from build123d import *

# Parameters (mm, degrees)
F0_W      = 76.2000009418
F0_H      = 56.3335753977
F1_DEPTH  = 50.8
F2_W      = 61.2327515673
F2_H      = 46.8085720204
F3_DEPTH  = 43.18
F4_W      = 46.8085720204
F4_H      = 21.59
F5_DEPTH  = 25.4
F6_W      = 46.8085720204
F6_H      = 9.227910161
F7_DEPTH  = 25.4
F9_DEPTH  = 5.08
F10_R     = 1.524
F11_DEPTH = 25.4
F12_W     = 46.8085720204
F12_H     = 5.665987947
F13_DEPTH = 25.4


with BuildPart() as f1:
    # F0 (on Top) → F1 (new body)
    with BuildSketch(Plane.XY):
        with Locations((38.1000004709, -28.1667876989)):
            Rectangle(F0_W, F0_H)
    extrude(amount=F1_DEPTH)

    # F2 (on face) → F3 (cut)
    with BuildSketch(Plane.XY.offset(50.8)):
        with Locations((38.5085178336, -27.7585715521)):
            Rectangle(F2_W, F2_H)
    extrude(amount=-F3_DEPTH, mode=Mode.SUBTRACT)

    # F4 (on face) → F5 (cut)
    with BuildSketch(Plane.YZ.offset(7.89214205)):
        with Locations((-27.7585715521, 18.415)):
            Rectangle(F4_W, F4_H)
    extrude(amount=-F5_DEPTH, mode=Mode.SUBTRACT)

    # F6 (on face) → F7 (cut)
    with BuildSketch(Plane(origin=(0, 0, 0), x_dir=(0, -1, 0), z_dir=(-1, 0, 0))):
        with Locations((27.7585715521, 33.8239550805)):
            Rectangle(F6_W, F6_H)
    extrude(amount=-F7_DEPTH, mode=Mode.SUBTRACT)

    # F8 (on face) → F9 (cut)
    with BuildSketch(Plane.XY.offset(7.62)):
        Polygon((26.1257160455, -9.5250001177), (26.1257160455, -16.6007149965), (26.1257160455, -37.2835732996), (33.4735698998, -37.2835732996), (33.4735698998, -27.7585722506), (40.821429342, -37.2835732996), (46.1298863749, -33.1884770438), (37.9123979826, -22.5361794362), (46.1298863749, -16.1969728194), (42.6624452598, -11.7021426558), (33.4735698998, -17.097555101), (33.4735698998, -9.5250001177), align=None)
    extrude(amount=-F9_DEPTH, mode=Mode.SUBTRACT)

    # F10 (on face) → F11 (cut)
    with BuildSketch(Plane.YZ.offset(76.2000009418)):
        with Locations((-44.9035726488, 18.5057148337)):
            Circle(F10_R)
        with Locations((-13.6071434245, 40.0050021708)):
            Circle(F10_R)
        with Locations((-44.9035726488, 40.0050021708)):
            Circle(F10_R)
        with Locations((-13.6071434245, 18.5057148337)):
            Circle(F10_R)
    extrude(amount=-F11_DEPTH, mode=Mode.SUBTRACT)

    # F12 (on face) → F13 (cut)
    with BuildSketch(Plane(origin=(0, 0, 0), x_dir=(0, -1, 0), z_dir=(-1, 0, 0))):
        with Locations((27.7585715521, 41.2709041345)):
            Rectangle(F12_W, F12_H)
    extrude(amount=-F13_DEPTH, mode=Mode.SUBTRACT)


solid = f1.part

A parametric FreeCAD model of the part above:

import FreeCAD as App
import Part
import Sketcher
from FreeCAD import Vector
Q = App.Units.Quantity

doc = App.newDocument("Part")
body = doc.addObject("PartDesign::Body", "Body")

sketch1 = body.newObject("Sketcher::SketchObject", "Sketch")
sketch1.AttachmentSupport = (doc.getObject("XY_Plane"), [""])
sketch1.MapMode = "FlatFace"
sketch1.addGeometry(Part.LineSegment(Vector(0, 0, 0), Vector(0, -56, 0)), False)
sketch1.addGeometry(Part.LineSegment(Vector(0, -56, 0), Vector(76, -56, 0)), False)
sketch1.addGeometry(Part.LineSegment(Vector(76, -56, 0), Vector(76, 0, 0)), False)
sketch1.addGeometry(Part.LineSegment(Vector(76, 0, 0), Vector(0, 0, 0)), False)
sketch1.addConstraint(Sketcher.Constraint("Coincident", 0, 2, 1, 1))
sketch1.addConstraint(Sketcher.Constraint("Coincident", 1, 2, 2, 1))
sketch1.addConstraint(Sketcher.Constraint("Coincident", 2, 2, 3, 1))
sketch1.addConstraint(Sketcher.Constraint("Coincident", 3, 2, 0, 1))
sketch1.addConstraint(Sketcher.Constraint("Vertical", 0))
sketch1.addConstraint(Sketcher.Constraint("Horizontal", 1))
sketch1.addConstraint(Sketcher.Constraint("Vertical", 2))
sketch1.addConstraint(Sketcher.Constraint("Horizontal", 3))
sketch1.addConstraint(Sketcher.Constraint("Coincident", 3, 2, -1, 1))
sketch1.addConstraint(Sketcher.Constraint("DistanceX", 1, 1, 1, 2, Q("3 in")))
sketch1.addConstraint(Sketcher.Constraint("DistanceY", 0, 2, 0, 1, Q("56.333575 mm")))
pad1 = body.newObject("PartDesign::Pad", "Pad")
pad1.Profile = sketch1
pad1.Length = Q("2 in")

sketch2 = body.newObject("Sketcher::SketchObject", "Sketch001")
sketch2.AttachmentSupport = (doc.getObject("XY_Plane"), [""])
sketch2.MapMode = "FlatFace"
sketch2.AttachmentOffset = App.Placement(Vector(0, 0, 2 * 25.4), App.Rotation())
sketch2.addGeometry(Part.LineSegment(Vector(8, -4, 0), Vector(8, -51, 0)), False)
sketch2.addGeometry(Part.LineSegment(Vector(8, -51, 0), Vector(69, -51, 0)), False)
sketch2.addGeometry(Part.LineSegment(Vector(69, -51, 0), Vector(69, -4, 0)), False)
sketch2.addGeometry(Part.LineSegment(Vector(69, -4, 0), Vector(8, -4, 0)), False)
sketch2.addConstraint(Sketcher.Constraint("Coincident", 0, 2, 1, 1))
sketch2.addConstraint(Sketcher.Constraint("Coincident", 1, 2, 2, 1))
sketch2.addConstraint(Sketcher.Constraint("Coincident", 2, 2, 3, 1))
sketch2.addConstraint(Sketcher.Constraint("Coincident", 3, 2, 0, 1))
sketch2.addConstraint(Sketcher.Constraint("Vertical", 0))
sketch2.addConstraint(Sketcher.Constraint("Horizontal", 1))
sketch2.addConstraint(Sketcher.Constraint("Vertical", 2))
sketch2.addConstraint(Sketcher.Constraint("Horizontal", 3))
sketch2.addConstraint(Sketcher.Constraint("DistanceX", 1, 1, 1, 2, Q("61.232752 mm")))
sketch2.addConstraint(Sketcher.Constraint("DistanceY", 0, 2, 0, 1, Q("46.808572 mm")))
sketch2.addConstraint(Sketcher.Constraint("DistanceX", -1, 1, 0, 2, Q("7.892142 mm")))
sketch2.addConstraint(Sketcher.Constraint("DistanceY", 0, 2, -1, 1, Q("51.162858 mm")))
pocket1 = body.newObject("PartDesign::Pocket", "Pocket")
pocket1.Profile = sketch2
pocket1.Length = Q("1.7 in")

sketch3 = body.newObject("Sketcher::SketchObject", "Sketch002")
sketch3.AttachmentSupport = (doc.getObject("YZ_Plane"), [""])
sketch3.MapMode = "FlatFace"
sketch3.AttachmentOffset = App.Placement(Vector(0, 0, 7.892142), App.Rotation())
sketch3.addGeometry(Part.LineSegment(Vector(-51, 29, 0), Vector(-51, 8, 0)), False)
sketch3.addGeometry(Part.LineSegment(Vector(-51, 8, 0), Vector(-4, 8, 0)), False)
sketch3.addGeometry(Part.LineSegment(Vector(-4, 8, 0), Vector(-4, 29, 0)), False)
sketch3.addGeometry(Part.LineSegment(Vector(-4, 29, 0), Vector(-51, 29, 0)), False)
sketch3.addConstraint(Sketcher.Constraint("Coincident", 0, 2, 1, 1))
sketch3.addConstraint(Sketcher.Constraint("Coincident", 1, 2, 2, 1))
sketch3.addConstraint(Sketcher.Constraint("Coincident", 2, 2, 3, 1))
sketch3.addConstraint(Sketcher.Constraint("Coincident", 3, 2, 0, 1))
sketch3.addConstraint(Sketcher.Constraint("Vertical", 0))
sketch3.addConstraint(Sketcher.Constraint("Horizontal", 1))
sketch3.addConstraint(Sketcher.Constraint("Vertical", 2))
sketch3.addConstraint(Sketcher.Constraint("Horizontal", 3))
sketch3.addConstraint(Sketcher.Constraint("DistanceY", 0, 2, 0, 1, Q("0.85 in")))
sketch3.addConstraint(Sketcher.Constraint("DistanceY", -1, 1, 0, 2, Q("0.3 in")))
sketch3.addConstraint(Sketcher.Constraint("DistanceX", 1, 1, 1, 2, Q("46.808572 mm")))
sketch3.addConstraint(Sketcher.Constraint("DistanceX", 0, 2, -1, 1, Q("51.162858 mm")))
pocket2 = body.newObject("PartDesign::Pocket", "Pocket001")
pocket2.Profile = sketch3
pocket2.Length = Q("1 in")

sketch4 = body.newObject("Sketcher::SketchObject", "Sketch003")
sketch4.AttachmentSupport = (doc.getObject("YZ_Plane"), [""])
sketch4.MapMode = "FlatFace"
sketch4.addGeometry(Part.LineSegment(Vector(-4, 38, 0), Vector(-4, 29, 0)), False)
sketch4.addGeometry(Part.LineSegment(Vector(-4, 29, 0), Vector(-51, 29, 0)), False)
sketch4.addGeometry(Part.LineSegment(Vector(-51, 29, 0), Vector(-51, 38, 0)), False)
sketch4.addGeometry(Part.LineSegment(Vector(-51, 38, 0), Vector(-4, 38, 0)), False)
sketch4.addConstraint(Sketcher.Constraint("Coincident", 0, 2, 1, 1))
sketch4.addConstraint(Sketcher.Constraint("Coincident", 1, 2, 2, 1))
sketch4.addConstraint(Sketcher.Constraint("Coincident", 2, 2, 3, 1))
sketch4.addConstraint(Sketcher.Constraint("Coincident", 3, 2, 0, 1))
sketch4.addConstraint(Sketcher.Constraint("Vertical", 0))
sketch4.addConstraint(Sketcher.Constraint("Horizontal", 1))
sketch4.addConstraint(Sketcher.Constraint("Vertical", 2))
sketch4.addConstraint(Sketcher.Constraint("Horizontal", 3))
sketch4.addConstraint(Sketcher.Constraint("DistanceY", -1, 1, 0, 2, Q("1.15 in")))
sketch4.addConstraint(Sketcher.Constraint("DistanceY", 0, 2, 0, 1, Q("9.22791 mm")))
sketch4.addConstraint(Sketcher.Constraint("DistanceX", 1, 2, 1, 1, Q("46.808572 mm")))
sketch4.addConstraint(Sketcher.Constraint("DistanceX", 0, 2, -1, 1, Q("4.354286 mm")))
pocket3 = body.newObject("PartDesign::Pocket", "Pocket002")
pocket3.Profile = sketch4
pocket3.Length = Q("1 in")
pocket3.Reversed = True

sketch5 = body.newObject("Sketcher::SketchObject", "Sketch004")
sketch5.AttachmentSupport = (doc.getObject("XY_Plane"), [""])
sketch5.MapMode = "FlatFace"
sketch5.AttachmentOffset = App.Placement(Vector(0, 0, 0.3 * 25.4), App.Rotation())
sketch5.addGeometry(Part.LineSegment(Vector(26, -10, 0), Vector(26, -37, 0)), False)
sketch5.addGeometry(Part.LineSegment(Vector(26, -37, 0), Vector(33, -37, 0)), False)
sketch5.addGeometry(Part.LineSegment(Vector(33, -37, 0), Vector(33, -28, 0)), False)
sketch5.addGeometry(Part.LineSegment(Vector(33, -28, 0), Vector(41, -37, 0)), False)
sketch5.addGeometry(Part.LineSegment(Vector(41, -37, 0), Vector(46, -33, 0)), False)
sketch5.addGeometry(Part.LineSegment(Vector(46, -33, 0), Vector(38, -23, 0)), False)
sketch5.addGeometry(Part.LineSegment(Vector(38, -23, 0), Vector(46, -16, 0)), False)
sketch5.addGeometry(Part.LineSegment(Vector(46, -16, 0), Vector(43, -12, 0)), False)
sketch5.addGeometry(Part.LineSegment(Vector(43, -12, 0), Vector(33, -17, 0)), False)
sketch5.addGeometry(Part.LineSegment(Vector(33, -17, 0), Vector(33, -10, 0)), False)
sketch5.addGeometry(Part.LineSegment(Vector(33, -10, 0), Vector(26, -10, 0)), False)
sketch5.addConstraint(Sketcher.Constraint("Coincident", 0, 2, 1, 1))
sketch5.addConstraint(Sketcher.Constraint("Coincident", 1, 2, 2, 1))
sketch5.addConstraint(Sketcher.Constraint("Coincident", 2, 2, 3, 1))
sketch5.addConstraint(Sketcher.Constraint("Coincident", 3, 2, 4, 1))
sketch5.addConstraint(Sketcher.Constraint("Coincident", 4, 2, 5, 1))
sketch5.addConstraint(Sketcher.Constraint("Coincident", 5, 2, 6, 1))
sketch5.addConstraint(Sketcher.Constraint("Coincident", 6, 2, 7, 1))
sketch5.addConstraint(Sketcher.Constraint("Coincident", 7, 2, 8, 1))
sketch5.addConstraint(Sketcher.Constraint("Coincident", 8, 2, 9, 1))
sketch5.addConstraint(Sketcher.Constraint("Coincident", 9, 2, 10, 1))
sketch5.addConstraint(Sketcher.Constraint("Coincident", 10, 2, 0, 1))
sketch5.addConstraint(Sketcher.Constraint("Vertical", 0))
sketch5.addConstraint(Sketcher.Constraint("Horizontal", 1))
sketch5.addConstraint(Sketcher.Constraint("Vertical", 2))
sketch5.addConstraint(Sketcher.Constraint("Vertical", 9))
sketch5.addConstraint(Sketcher.Constraint("Horizontal", 10))
sketch5.addConstraint(Sketcher.Constraint("Perpendicular", 3, 4))
sketch5.addConstraint(Sketcher.Constraint("Perpendicular", 4, 5))
sketch5.addConstraint(Sketcher.Constraint("Perpendicular", 5, 6))
sketch5.addConstraint(Sketcher.Constraint("Perpendicular", 6, 7))
sketch5.addConstraint(Sketcher.Constraint("Horizontal", 1, 2, 3, 2))
sketch5.addConstraint(Sketcher.Constraint("Vertical", 4, 2, 6, 2))
sketch5.addConstraint(Sketcher.Constraint("Vertical", 2, 2, 8, 2))
sketch5.addConstraint(Sketcher.Constraint("DistanceY", 2, 1, 2, 2, Q("0.375 in")))
sketch5.addConstraint(Sketcher.Constraint("DistanceY", 9, 2, -1, 1, Q("0.375 in")))
sketch5.addConstraint(Sketcher.Constraint("DistanceY", 2, 2, 6, 2, Q("11.561599 mm")))
sketch5.addConstraint(Sketcher.Constraint("Distance", 4, Q("6.704441 mm")))
sketch5.addConstraint(Sketcher.Constraint("Distance", 5, Q("13.453571 mm")))
sketch5.addConstraint(Sketcher.Constraint("Distance", 7, Q("5.676852 mm")))
sketch5.addConstraint(Sketcher.Constraint("DistanceX", 1, 1, 1, 2, Q("7.347854 mm")))
sketch5.addConstraint(Sketcher.Constraint("DistanceY", 0, 2, 0, 1, Q("27.758573 mm")))
sketch5.addConstraint(Sketcher.Constraint("DistanceY", 9, 1, 9, 2, Q("7.572555 mm")))
sketch5.addConstraint(Sketcher.Constraint("DistanceX", -1, 1, 1, 2, Q("33.47357 mm")))
pocket4 = body.newObject("PartDesign::Pocket", "Pocket003")
pocket4.Profile = sketch5
pocket4.Length = Q("0.2 in")

sketch6 = body.newObject("Sketcher::SketchObject", "Sketch005")
sketch6.AttachmentSupport = (doc.getObject("YZ_Plane"), [""])
sketch6.MapMode = "FlatFace"
sketch6.AttachmentOffset = App.Placement(Vector(0, 0, 3 * 25.4), App.Rotation())
sketch6.addGeometry(Part.Circle(Vector(-44.9, 18.5, 0), Vector(0, 0, 1), 1.5), False)
sketch6.addGeometry(Part.Circle(Vector(-13.6, 40, 0), Vector(0, 0, 1), 1.5), False)
sketch6.addGeometry(Part.Circle(Vector(-44.9, 40, 0), Vector(0, 0, 1), 1.5), False)
sketch6.addGeometry(Part.Circle(Vector(-13.6, 18.5, 0), Vector(0, 0, 1), 1.5), False)
sketch6.addConstraint(Sketcher.Constraint("Equal", 0, 1))
sketch6.addConstraint(Sketcher.Constraint("Equal", 1, 2))
sketch6.addConstraint(Sketcher.Constraint("Equal", 2, 3))
sketch6.addConstraint(Sketcher.Constraint("Horizontal", 1, 3, 2, 3))
sketch6.addConstraint(Sketcher.Constraint("Horizontal", 0, 3, 3, 3))
sketch6.addConstraint(Sketcher.Constraint("Vertical", 0, 3, 2, 3))
sketch6.addConstraint(Sketcher.Constraint("Vertical", 1, 3, 3, 3))
sketch6.addConstraint(Sketcher.Constraint("Diameter", 0, Q("0.12 in")))
sketch6.addConstraint(Sketcher.Constraint("DistanceY", -1, 1, 1, 3, Q("1.5750001 in")))
sketch6.addConstraint(Sketcher.Constraint("DistanceX", 0, 3, 1, 3, Q("31.296429 mm")))
sketch6.addConstraint(Sketcher.Constraint("DistanceX", 0, 3, -1, 1, Q("44.903573 mm")))
sketch6.addConstraint(Sketcher.Constraint("DistanceY", -1, 1, 0, 3, Q("18.505715 mm")))
pocket5 = body.newObject("PartDesign::Pocket", "Pocket004")
pocket5.Profile = sketch6
pocket5.Length = Q("1 in")

sketch7 = body.newObject("Sketcher::SketchObject", "Sketch006")
sketch7.AttachmentSupport = (doc.getObject("YZ_Plane"), [""])
sketch7.MapMode = "FlatFace"
sketch7.addGeometry(Part.LineSegment(Vector(-4, 44, 0), Vector(-4, 38, 0)), False)
sketch7.addGeometry(Part.LineSegment(Vector(-4, 38, 0), Vector(-51, 38, 0)), False)
sketch7.addGeometry(Part.LineSegment(Vector(-51, 38, 0), Vector(-51, 44, 0)), False)
sketch7.addGeometry(Part.LineSegment(Vector(-51, 44, 0), Vector(-4, 44, 0)), False)
sketch7.addConstraint(Sketcher.Constraint("Coincident", 0, 2, 1, 1))
sketch7.addConstraint(Sketcher.Constraint("Coincident", 1, 2, 2, 1))
sketch7.addConstraint(Sketcher.Constraint("Coincident", 2, 2, 3, 1))
sketch7.addConstraint(Sketcher.Constraint("Coincident", 3, 2, 0, 1))
sketch7.addConstraint(Sketcher.Constraint("Vertical", 0))
sketch7.addConstraint(Sketcher.Constraint("Horizontal", 1))
sketch7.addConstraint(Sketcher.Constraint("Vertical", 2))
sketch7.addConstraint(Sketcher.Constraint("Horizontal", 3))
sketch7.addConstraint(Sketcher.Constraint("DistanceY", -1, 1, 2, 2, Q("44.103898 mm")))
sketch7.addConstraint(Sketcher.Constraint("DistanceX", 1, 2, 1, 1, Q("46.808572 mm")))
sketch7.addConstraint(Sketcher.Constraint("DistanceY", 0, 2, 0, 1, Q("5.665988 mm")))
sketch7.addConstraint(Sketcher.Constraint("DistanceX", 0, 2, -1, 1, Q("4.354286 mm")))
pocket6 = body.newObject("PartDesign::Pocket", "Pocket005")
pocket6.Profile = sketch7
pocket6.Length = Q("1 in")
pocket6.Reversed = True

doc.recompute()
